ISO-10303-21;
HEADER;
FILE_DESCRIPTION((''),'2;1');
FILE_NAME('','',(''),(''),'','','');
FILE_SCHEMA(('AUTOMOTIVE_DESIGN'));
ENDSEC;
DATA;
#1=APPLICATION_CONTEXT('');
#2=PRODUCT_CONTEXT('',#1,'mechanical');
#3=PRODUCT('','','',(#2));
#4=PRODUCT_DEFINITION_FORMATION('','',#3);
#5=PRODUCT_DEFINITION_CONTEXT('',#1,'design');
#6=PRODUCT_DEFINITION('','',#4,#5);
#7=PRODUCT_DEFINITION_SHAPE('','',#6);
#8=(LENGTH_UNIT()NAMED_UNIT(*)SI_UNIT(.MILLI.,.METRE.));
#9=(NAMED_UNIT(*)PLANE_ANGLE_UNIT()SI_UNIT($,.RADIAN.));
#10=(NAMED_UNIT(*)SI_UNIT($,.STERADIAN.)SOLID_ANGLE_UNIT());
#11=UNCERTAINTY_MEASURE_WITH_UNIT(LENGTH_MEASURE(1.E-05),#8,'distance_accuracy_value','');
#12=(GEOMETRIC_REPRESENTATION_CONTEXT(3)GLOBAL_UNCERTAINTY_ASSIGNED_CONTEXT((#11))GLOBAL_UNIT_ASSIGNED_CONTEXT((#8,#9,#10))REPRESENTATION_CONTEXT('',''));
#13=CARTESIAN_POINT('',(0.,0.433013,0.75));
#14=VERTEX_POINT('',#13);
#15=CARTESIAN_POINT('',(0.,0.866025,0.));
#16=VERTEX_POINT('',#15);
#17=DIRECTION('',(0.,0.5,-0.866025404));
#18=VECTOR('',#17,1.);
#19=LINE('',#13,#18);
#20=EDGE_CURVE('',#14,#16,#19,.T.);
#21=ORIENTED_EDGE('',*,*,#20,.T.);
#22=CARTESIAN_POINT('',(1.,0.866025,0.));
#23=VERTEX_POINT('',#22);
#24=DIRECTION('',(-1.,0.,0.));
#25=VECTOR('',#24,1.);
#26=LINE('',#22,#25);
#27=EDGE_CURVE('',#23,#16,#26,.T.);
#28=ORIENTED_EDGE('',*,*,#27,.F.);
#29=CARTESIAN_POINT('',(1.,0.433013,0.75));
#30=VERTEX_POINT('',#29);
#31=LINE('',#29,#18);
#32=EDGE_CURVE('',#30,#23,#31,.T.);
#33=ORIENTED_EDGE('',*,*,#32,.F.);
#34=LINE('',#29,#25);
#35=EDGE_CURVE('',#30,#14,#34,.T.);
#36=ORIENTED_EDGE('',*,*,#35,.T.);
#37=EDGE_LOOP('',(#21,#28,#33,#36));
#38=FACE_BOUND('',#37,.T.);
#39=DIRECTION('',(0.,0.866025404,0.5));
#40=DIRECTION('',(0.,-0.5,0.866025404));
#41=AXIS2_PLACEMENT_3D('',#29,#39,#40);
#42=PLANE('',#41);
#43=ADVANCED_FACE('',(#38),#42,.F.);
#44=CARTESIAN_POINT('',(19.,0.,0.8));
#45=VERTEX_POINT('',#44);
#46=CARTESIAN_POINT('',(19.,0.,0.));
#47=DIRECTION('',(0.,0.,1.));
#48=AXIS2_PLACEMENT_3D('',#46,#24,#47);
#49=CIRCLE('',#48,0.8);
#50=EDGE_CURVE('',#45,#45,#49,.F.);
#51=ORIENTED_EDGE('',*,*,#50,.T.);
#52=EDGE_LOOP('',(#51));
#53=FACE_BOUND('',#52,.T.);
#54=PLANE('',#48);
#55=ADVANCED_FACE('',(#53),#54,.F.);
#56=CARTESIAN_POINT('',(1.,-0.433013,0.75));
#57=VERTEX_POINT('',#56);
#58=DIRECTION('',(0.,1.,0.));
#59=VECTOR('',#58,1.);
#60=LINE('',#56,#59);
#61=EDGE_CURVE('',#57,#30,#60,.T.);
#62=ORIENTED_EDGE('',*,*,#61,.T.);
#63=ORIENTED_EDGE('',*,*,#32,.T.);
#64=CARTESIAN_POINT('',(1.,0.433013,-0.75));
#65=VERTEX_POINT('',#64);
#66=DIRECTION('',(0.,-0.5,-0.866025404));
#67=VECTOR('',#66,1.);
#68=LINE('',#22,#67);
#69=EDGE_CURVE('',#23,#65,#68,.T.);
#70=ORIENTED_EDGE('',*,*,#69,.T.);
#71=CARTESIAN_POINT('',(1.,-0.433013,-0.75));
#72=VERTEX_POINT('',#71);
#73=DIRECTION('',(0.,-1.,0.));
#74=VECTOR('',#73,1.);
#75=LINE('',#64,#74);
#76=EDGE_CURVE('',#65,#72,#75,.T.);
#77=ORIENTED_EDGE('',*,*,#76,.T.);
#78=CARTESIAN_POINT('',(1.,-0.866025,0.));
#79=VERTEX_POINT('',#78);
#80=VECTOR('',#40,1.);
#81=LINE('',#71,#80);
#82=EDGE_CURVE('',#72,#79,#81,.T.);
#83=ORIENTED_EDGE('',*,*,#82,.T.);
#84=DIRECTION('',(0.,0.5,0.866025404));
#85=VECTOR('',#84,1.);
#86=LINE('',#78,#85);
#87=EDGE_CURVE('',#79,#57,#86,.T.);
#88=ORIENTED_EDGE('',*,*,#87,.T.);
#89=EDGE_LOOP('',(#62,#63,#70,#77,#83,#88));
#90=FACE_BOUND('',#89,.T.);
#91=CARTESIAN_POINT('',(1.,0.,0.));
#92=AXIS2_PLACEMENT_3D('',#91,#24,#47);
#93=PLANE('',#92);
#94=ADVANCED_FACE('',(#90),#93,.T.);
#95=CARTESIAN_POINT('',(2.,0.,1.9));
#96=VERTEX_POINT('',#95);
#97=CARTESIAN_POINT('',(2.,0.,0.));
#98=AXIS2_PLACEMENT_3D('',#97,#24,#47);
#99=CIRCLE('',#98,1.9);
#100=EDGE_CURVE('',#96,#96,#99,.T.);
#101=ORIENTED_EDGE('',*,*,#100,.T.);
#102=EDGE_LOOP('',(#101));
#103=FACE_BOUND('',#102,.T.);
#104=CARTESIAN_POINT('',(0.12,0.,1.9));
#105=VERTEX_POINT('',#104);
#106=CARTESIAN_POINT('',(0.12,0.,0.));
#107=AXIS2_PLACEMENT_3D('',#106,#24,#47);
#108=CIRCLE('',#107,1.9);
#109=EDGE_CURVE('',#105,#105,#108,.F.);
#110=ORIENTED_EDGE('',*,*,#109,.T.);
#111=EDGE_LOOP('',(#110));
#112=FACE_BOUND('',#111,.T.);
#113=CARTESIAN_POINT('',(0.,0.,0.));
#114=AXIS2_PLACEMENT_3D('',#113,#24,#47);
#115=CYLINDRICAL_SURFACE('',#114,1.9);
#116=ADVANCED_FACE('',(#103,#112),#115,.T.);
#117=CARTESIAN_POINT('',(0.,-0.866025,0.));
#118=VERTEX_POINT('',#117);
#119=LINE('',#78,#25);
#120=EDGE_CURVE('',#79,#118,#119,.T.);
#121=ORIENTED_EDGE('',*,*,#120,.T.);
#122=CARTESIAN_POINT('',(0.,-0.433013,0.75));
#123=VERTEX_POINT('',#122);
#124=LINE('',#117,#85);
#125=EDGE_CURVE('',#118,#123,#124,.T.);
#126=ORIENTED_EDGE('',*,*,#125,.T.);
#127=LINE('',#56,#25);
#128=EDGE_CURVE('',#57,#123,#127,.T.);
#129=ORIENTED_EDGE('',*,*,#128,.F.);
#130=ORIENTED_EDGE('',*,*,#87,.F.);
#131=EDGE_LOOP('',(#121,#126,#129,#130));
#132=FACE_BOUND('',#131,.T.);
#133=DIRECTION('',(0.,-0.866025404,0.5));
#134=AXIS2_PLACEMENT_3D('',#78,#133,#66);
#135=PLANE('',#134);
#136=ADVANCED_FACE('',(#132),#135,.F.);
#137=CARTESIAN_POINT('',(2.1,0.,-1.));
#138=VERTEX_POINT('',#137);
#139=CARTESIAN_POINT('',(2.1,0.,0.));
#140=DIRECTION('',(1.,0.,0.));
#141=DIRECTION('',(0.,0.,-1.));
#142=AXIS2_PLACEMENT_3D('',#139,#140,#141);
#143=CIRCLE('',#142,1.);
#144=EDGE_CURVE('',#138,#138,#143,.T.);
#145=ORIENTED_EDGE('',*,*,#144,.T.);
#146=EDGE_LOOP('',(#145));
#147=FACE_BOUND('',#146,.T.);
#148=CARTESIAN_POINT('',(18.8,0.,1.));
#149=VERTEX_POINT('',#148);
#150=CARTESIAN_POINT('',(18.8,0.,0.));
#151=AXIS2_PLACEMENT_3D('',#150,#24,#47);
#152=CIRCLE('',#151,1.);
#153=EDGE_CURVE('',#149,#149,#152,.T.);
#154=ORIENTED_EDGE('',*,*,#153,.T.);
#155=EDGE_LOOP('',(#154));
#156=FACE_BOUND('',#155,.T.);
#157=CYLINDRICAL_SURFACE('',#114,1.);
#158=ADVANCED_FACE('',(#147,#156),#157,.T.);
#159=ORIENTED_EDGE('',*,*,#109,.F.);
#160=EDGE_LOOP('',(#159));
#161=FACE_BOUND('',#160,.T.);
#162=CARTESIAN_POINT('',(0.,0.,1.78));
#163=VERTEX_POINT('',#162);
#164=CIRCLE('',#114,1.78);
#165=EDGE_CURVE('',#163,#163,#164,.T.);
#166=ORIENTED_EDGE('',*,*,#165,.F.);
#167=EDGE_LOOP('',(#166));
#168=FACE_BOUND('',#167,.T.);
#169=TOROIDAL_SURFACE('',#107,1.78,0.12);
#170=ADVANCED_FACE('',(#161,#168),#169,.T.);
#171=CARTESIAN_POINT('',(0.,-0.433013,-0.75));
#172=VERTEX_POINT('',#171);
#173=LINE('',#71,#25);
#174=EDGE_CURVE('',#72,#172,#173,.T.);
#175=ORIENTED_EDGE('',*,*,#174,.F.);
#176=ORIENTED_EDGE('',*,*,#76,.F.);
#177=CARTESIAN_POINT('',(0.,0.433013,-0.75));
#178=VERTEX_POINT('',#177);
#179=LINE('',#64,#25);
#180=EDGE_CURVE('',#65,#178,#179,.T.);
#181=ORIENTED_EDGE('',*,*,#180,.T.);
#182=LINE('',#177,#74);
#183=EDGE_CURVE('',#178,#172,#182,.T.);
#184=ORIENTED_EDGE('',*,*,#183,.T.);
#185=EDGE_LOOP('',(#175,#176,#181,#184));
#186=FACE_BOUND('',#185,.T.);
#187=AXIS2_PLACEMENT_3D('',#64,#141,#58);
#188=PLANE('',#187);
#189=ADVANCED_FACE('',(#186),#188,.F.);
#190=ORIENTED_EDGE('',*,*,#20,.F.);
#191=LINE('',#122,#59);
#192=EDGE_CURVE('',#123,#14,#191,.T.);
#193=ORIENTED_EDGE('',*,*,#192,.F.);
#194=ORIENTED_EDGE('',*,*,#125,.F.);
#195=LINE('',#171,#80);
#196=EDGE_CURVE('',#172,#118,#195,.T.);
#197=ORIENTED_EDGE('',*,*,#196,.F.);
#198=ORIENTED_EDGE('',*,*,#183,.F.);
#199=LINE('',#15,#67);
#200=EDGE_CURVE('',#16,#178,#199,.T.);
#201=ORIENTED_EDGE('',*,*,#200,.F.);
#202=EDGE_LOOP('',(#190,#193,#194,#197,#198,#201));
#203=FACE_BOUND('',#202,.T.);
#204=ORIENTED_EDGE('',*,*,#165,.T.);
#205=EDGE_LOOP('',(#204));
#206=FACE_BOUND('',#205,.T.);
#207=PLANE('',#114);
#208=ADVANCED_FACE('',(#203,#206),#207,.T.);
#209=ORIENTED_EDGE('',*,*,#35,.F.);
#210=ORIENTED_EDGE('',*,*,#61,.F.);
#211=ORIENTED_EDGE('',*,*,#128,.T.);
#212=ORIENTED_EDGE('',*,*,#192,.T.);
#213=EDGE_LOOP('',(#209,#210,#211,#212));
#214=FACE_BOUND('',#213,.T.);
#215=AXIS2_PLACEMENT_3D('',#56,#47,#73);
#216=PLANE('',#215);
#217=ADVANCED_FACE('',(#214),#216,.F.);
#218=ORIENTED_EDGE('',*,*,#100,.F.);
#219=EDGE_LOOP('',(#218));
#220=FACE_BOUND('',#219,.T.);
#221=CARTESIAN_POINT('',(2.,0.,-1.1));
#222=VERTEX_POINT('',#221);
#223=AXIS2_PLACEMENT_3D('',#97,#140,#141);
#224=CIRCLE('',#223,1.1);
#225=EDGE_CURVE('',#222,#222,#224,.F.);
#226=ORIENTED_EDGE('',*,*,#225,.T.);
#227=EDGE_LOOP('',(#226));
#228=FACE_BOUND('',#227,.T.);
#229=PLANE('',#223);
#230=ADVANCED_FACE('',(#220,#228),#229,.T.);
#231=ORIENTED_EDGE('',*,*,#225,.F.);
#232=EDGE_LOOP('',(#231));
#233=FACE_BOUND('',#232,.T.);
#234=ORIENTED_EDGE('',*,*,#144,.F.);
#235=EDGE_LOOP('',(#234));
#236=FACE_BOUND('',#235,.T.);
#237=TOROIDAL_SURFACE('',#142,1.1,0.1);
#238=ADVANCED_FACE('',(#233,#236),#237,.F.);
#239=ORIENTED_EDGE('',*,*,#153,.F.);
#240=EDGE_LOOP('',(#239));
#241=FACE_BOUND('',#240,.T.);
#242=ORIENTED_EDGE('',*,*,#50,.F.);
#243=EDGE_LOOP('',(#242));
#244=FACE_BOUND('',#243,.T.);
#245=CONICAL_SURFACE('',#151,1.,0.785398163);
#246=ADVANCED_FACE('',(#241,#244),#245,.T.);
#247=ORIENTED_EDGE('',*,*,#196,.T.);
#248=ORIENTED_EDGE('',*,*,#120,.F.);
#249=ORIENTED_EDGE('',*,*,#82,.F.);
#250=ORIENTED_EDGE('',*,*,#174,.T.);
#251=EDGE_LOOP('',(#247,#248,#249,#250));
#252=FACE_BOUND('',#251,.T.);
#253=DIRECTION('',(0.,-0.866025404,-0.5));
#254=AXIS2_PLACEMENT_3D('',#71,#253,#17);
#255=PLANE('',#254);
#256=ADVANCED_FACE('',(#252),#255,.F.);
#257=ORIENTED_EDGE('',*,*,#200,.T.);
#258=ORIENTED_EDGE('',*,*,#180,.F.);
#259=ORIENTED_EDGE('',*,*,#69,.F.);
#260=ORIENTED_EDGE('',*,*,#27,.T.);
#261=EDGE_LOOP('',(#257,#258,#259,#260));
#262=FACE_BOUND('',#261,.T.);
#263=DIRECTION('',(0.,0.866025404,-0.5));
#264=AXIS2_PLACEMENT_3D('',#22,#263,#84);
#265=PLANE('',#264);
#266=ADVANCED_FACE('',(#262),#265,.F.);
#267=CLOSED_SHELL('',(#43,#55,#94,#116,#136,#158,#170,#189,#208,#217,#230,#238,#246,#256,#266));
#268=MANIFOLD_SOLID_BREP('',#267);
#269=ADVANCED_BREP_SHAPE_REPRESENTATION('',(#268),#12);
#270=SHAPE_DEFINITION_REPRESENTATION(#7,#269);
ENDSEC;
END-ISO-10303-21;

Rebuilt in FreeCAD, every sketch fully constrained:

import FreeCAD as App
import Part
import Sketcher
from FreeCAD import Vector
Q = App.Units.Quantity


def edges_at(feature, points):
    """Names of the edges that pass closest to the given points."""
    edges = feature.Shape.Edges
    near = lambda p: min(range(len(edges)), key=lambda i: edges[i].distToShape(Part.Vertex(*p))[0])
    return sorted({f"Edge{near(p) + 1}" for p in points})

doc = App.newDocument("Part")
params = doc.addObject("Spreadsheet::Sheet", "Params")
for row, (alias, value) in enumerate([
    ("sketch1_width", "17 mm"),
    ("sketch1_width2", "2 mm"),
    ("sketch1_height", "1 mm"),
    ("sketch1_height2", "0.9 mm"),
    ("revolution_angle", "360 deg"),
    ("fillet_radius", "0.1 mm"),
    ("fillet2_radius", "0.12 mm"),
    ("chamfer_size", "0.2 mm"),
    ("pocket1_length", "1 mm"),
], start=1):
    params.set(f"A{row}", alias)
    params.set(f"B{row}", "=" + value)
    params.setAlias(f"B{row}", alias)

body = doc.addObject("PartDesign::Body", "Body")

sketch1 = body.newObject("Sketcher::SketchObject", "Sketch")
sketch1.AttachmentSupport = (doc.getObject("XY_Plane"), [""])
sketch1.MapMode = "FlatFace"
sketch1.addGeometry(Part.LineSegment(Vector(19, 0, 0), Vector(19, 1, 0)), False)
sketch1.addGeometry(Part.LineSegment(Vector(19, 1, 0), Vector(2, 1, 0)), False)
sketch1.addGeometry(Part.LineSegment(Vector(2, 1, 0), Vector(2, 1.9, 0)), False)
sketch1.addGeometry(Part.LineSegment(Vector(2, 1.9, 0), Vector(0, 1.9, 0)), False)
sketch1.addGeometry(Part.LineSegment(Vector(0, 1.9, 0), Vector(0, 0, 0)), False)
sketch1.addGeometry(Part.LineSegment(Vector(0, 0, 0), Vector(19, 0, 0)), False)
sketch1.addConstraint(Sketcher.Constraint("Coincident", 0, 2, 1, 1))
sketch1.addConstraint(Sketcher.Constraint("Coincident", 1, 2, 2, 1))
sketch1.addConstraint(Sketcher.Constraint("Coincident", 2, 2, 3, 1))
sketch1.addConstraint(Sketcher.Constraint("Coincident", 3, 2, 4, 1))
sketch1.addConstraint(Sketcher.Constraint("Coincident", 4, 2, 5, 1))
sketch1.addConstraint(Sketcher.Constraint("Coincident", 5, 2, 0, 1))
sketch1.addConstraint(Sketcher.Constraint("Vertical", 0))
sketch1.addConstraint(Sketcher.Constraint("Horizontal", 1))
sketch1.addConstraint(Sketcher.Constraint("Vertical", 2))
sketch1.addConstraint(Sketcher.Constraint("Horizontal", 3))
sketch1.addConstraint(Sketcher.Constraint("Vertical", 4))
sketch1.addConstraint(Sketcher.Constraint("Horizontal", 5))
sketch1.addConstraint(Sketcher.Constraint("Coincident", 4, 2, -1, 1))
sketch1.addConstraint(Sketcher.Constraint("DistanceX", 1, 2, 1, 1, Q("17 mm")))
sketch1.addConstraint(Sketcher.Constraint("DistanceX", 3, 2, 3, 1, Q("2 mm")))
sketch1.addConstraint(Sketcher.Constraint("DistanceY", 0, 1, 0, 2, Q("1 mm")))
sketch1.addConstraint(Sketcher.Constraint("DistanceY", 2, 1, 2, 2, Q("0.9 mm")))
sketch1.setExpression("Constraints[13]", "Params.sketch1_width")
sketch1.setExpression("Constraints[14]", "Params.sketch1_width2")
sketch1.setExpression("Constraints[15]", "Params.sketch1_height")
sketch1.setExpression("Constraints[16]", "Params.sketch1_height2")
revolution = body.newObject("PartDesign::Revolution", "Revolution")
revolution.Profile = sketch1
revolution.ReferenceAxis = (sketch1, ["H_Axis"])
revolution.setExpression("Angle", "Params.revolution_angle")
doc.recompute()

fillet = body.newObject("PartDesign::Fillet", "Fillet")
fillet.Base = (revolution, edges_at(revolution, [(2, 0, -1)]))
fillet.setExpression("Radius", "Params.fillet_radius")
doc.recompute()

fillet2 = body.newObject("PartDesign::Fillet", "Fillet001")
fillet2.Base = (fillet, edges_at(fillet, [(0, 0, -1.9)]))
fillet2.setExpression("Radius", "Params.fillet2_radius")
doc.recompute()

chamfer = body.newObject("PartDesign::Chamfer", "Chamfer")
chamfer.Base = (fillet2, edges_at(fillet2, [(19, 0, -1)]))
chamfer.setExpression("Size", "Params.chamfer_size")

sketch2 = body.newObject("Sketcher::SketchObject", "Sketch001")
sketch2.AttachmentSupport = (doc.getObject("YZ_Plane"), [""])
sketch2.MapMode = "FlatFace"
sketch2.addGeometry(Part.LineSegment(Vector(0.9, 0, 0), Vector(0.4, -0.8, 0)), False)
sketch2.addGeometry(Part.LineSegment(Vector(0.4, -0.8, 0), Vector(-0.4, -0.8, 0)), False)
sketch2.addGeometry(Part.LineSegment(Vector(-0.4, -0.8, 0), Vector(-0.9, 0, 0)), False)
sketch2.addGeometry(Part.LineSegment(Vector(-0.9, 0, 0), Vector(-0.4, 0.8, 0)), False)
sketch2.addGeometry(Part.LineSegment(Vector(-0.4, 0.8, 0), Vector(0.4, 0.8, 0)), False)
sketch2.addGeometry(Part.LineSegment(Vector(0.4, 0.8, 0), Vector(0.9, 0, 0)), False)
sketch2.addConstraint(Sketcher.Constraint("Coincident", 0, 2, 1, 1))
sketch2.addConstraint(Sketcher.Constraint("Coincident", 1, 2, 2, 1))
sketch2.addConstraint(Sketcher.Constraint("Coincident", 2, 2, 3, 1))
sketch2.addConstraint(Sketcher.Constraint("Coincident", 3, 2, 4, 1))
sketch2.addConstraint(Sketcher.Constraint("Coincident", 4, 2, 5, 1))
sketch2.addConstraint(Sketcher.Constraint("Coincident", 5, 2, 0, 1))
sketch2.addConstraint(Sketcher.Constraint("Horizontal", 1))
sketch2.addConstraint(Sketcher.Constraint("Horizontal", 4))
sketch2.addConstraint(Sketcher.Constraint("Symmetric", 0, 2, 3, 2, -1, 1))
sketch2.addConstraint(Sketcher.Constraint("Symmetric", 2, 2, 5, 2, -1, 1))
sketch2.addConstraint(Sketcher.Constraint("PointOnObject", 2, 2, -1))
sketch2.addConstraint(Sketcher.Constraint("Parallel", 2, 5))
sketch2.addConstraint(Sketcher.Constraint("Vertical", 1, 2, 3, 2))
sketch2.addConstraint(Sketcher.Constraint("Angle", 0, Q("-120 deg")))
sketch2.addConstraint(Sketcher.Constraint("DistanceY", 1, 2, 3, 2, Q("1.5 mm")))
sketch2.addConstraint(Sketcher.Constraint("DistanceX", 1, 2, 1, 1, Q("0.866025 mm")))
pocket1 = body.newObject("PartDesign::Pocket", "Pocket")
pocket1.Profile = sketch2
pocket1.setExpression("Length", "Params.pocket1_length")
pocket1.Reversed = True

doc.recompute()
